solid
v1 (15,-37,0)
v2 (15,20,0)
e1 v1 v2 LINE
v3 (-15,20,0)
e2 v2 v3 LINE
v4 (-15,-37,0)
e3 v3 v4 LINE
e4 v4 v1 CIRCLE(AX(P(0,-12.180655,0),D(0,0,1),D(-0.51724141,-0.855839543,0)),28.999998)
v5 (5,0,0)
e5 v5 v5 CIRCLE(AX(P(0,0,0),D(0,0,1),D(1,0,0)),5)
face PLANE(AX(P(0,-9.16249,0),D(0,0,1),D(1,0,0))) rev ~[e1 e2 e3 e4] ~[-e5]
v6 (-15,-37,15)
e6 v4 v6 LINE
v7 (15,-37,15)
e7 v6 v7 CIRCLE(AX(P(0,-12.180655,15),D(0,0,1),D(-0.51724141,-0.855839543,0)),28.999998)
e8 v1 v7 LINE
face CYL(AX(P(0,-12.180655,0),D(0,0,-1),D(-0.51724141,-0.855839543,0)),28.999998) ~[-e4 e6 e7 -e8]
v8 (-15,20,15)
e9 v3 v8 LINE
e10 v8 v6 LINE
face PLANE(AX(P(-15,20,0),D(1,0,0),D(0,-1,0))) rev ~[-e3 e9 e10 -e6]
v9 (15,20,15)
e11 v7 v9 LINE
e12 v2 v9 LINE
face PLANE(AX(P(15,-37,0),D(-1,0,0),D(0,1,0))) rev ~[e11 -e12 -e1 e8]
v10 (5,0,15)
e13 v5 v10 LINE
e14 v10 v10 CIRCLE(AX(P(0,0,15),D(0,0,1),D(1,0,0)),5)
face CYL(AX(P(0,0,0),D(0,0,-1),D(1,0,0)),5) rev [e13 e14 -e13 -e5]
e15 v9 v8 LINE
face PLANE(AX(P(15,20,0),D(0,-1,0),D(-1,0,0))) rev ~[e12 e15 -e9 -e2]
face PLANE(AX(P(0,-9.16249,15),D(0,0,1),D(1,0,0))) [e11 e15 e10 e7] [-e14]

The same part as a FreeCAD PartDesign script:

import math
import FreeCAD as App
import Part
import Sketcher

V = App.Vector
Q = App.Units.Quantity

doc = App.newDocument("Part")
body = doc.addObject("PartDesign::Body", "Body")

# Sketch on XY plane
sketch1 = body.newObject("Sketcher::SketchObject", "Sketch")
sketch1.AttachmentSupport = (doc.getObject("XY_Plane"), [""])
sketch1.MapMode = "FlatFace"
sketch1.addGeometry(Part.LineSegment(V(15, -37, 0), V(15, 20, 0)), False)
sketch1.addGeometry(Part.LineSegment(V(15, 20, 0), V(-15, 20, 0)), False)
sketch1.addGeometry(Part.LineSegment(V(-15, 20, 0), V(-15, -37, 0)), False)
sketch1.addGeometry(Part.ArcOfCircle(Part.Circle(V(0, -12.180655, 0), V(0, 0, 1), 28.999998), math.radians(-121.147392), math.radians(-58.852608)), False)
sketch1.addGeometry(Part.Circle(V(0, 0, 0), V(0, 0, 1), 5), False)
sketch1.addConstraint(Sketcher.Constraint("Coincident", 0, 2, 1, 1))
sketch1.addConstraint(Sketcher.Constraint("Coincident", 1, 2, 2, 1))
sketch1.addConstraint(Sketcher.Constraint("Coincident", 2, 2, 3, 1))
sketch1.addConstraint(Sketcher.Constraint("Coincident", 3, 2, 0, 1))
sketch1.addConstraint(Sketcher.Constraint("Vertical", 0))
sketch1.addConstraint(Sketcher.Constraint("Horizontal", 1))
sketch1.addConstraint(Sketcher.Constraint("Vertical", 2))
sketch1.addConstraint(Sketcher.Constraint("Coincident", 4, 3, -1, 1))
sketch1.addConstraint(Sketcher.Constraint("Symmetric", 2, 2, 3, 2, -2))
sketch1.addConstraint(Sketcher.Constraint("Diameter", 4, Q("10 mm")))
sketch1.addConstraint(Sketcher.Constraint("Radius", 3, Q("28.999998 mm")))
sketch1.addConstraint(Sketcher.Constraint("DistanceX", 1, 2, 1, 1, Q("30 mm")))
sketch1.addConstraint(Sketcher.Constraint("DistanceY", 0, 1, 0, 2, Q("57 mm")))
sketch1.addConstraint(Sketcher.Constraint("DistanceY", -1, 1, 0, 2, Q("20 mm")))
pad1 = body.newObject("PartDesign::Pad", "Pad")
pad1.Profile = sketch1
pad1.Length = 15

doc.recompute()
